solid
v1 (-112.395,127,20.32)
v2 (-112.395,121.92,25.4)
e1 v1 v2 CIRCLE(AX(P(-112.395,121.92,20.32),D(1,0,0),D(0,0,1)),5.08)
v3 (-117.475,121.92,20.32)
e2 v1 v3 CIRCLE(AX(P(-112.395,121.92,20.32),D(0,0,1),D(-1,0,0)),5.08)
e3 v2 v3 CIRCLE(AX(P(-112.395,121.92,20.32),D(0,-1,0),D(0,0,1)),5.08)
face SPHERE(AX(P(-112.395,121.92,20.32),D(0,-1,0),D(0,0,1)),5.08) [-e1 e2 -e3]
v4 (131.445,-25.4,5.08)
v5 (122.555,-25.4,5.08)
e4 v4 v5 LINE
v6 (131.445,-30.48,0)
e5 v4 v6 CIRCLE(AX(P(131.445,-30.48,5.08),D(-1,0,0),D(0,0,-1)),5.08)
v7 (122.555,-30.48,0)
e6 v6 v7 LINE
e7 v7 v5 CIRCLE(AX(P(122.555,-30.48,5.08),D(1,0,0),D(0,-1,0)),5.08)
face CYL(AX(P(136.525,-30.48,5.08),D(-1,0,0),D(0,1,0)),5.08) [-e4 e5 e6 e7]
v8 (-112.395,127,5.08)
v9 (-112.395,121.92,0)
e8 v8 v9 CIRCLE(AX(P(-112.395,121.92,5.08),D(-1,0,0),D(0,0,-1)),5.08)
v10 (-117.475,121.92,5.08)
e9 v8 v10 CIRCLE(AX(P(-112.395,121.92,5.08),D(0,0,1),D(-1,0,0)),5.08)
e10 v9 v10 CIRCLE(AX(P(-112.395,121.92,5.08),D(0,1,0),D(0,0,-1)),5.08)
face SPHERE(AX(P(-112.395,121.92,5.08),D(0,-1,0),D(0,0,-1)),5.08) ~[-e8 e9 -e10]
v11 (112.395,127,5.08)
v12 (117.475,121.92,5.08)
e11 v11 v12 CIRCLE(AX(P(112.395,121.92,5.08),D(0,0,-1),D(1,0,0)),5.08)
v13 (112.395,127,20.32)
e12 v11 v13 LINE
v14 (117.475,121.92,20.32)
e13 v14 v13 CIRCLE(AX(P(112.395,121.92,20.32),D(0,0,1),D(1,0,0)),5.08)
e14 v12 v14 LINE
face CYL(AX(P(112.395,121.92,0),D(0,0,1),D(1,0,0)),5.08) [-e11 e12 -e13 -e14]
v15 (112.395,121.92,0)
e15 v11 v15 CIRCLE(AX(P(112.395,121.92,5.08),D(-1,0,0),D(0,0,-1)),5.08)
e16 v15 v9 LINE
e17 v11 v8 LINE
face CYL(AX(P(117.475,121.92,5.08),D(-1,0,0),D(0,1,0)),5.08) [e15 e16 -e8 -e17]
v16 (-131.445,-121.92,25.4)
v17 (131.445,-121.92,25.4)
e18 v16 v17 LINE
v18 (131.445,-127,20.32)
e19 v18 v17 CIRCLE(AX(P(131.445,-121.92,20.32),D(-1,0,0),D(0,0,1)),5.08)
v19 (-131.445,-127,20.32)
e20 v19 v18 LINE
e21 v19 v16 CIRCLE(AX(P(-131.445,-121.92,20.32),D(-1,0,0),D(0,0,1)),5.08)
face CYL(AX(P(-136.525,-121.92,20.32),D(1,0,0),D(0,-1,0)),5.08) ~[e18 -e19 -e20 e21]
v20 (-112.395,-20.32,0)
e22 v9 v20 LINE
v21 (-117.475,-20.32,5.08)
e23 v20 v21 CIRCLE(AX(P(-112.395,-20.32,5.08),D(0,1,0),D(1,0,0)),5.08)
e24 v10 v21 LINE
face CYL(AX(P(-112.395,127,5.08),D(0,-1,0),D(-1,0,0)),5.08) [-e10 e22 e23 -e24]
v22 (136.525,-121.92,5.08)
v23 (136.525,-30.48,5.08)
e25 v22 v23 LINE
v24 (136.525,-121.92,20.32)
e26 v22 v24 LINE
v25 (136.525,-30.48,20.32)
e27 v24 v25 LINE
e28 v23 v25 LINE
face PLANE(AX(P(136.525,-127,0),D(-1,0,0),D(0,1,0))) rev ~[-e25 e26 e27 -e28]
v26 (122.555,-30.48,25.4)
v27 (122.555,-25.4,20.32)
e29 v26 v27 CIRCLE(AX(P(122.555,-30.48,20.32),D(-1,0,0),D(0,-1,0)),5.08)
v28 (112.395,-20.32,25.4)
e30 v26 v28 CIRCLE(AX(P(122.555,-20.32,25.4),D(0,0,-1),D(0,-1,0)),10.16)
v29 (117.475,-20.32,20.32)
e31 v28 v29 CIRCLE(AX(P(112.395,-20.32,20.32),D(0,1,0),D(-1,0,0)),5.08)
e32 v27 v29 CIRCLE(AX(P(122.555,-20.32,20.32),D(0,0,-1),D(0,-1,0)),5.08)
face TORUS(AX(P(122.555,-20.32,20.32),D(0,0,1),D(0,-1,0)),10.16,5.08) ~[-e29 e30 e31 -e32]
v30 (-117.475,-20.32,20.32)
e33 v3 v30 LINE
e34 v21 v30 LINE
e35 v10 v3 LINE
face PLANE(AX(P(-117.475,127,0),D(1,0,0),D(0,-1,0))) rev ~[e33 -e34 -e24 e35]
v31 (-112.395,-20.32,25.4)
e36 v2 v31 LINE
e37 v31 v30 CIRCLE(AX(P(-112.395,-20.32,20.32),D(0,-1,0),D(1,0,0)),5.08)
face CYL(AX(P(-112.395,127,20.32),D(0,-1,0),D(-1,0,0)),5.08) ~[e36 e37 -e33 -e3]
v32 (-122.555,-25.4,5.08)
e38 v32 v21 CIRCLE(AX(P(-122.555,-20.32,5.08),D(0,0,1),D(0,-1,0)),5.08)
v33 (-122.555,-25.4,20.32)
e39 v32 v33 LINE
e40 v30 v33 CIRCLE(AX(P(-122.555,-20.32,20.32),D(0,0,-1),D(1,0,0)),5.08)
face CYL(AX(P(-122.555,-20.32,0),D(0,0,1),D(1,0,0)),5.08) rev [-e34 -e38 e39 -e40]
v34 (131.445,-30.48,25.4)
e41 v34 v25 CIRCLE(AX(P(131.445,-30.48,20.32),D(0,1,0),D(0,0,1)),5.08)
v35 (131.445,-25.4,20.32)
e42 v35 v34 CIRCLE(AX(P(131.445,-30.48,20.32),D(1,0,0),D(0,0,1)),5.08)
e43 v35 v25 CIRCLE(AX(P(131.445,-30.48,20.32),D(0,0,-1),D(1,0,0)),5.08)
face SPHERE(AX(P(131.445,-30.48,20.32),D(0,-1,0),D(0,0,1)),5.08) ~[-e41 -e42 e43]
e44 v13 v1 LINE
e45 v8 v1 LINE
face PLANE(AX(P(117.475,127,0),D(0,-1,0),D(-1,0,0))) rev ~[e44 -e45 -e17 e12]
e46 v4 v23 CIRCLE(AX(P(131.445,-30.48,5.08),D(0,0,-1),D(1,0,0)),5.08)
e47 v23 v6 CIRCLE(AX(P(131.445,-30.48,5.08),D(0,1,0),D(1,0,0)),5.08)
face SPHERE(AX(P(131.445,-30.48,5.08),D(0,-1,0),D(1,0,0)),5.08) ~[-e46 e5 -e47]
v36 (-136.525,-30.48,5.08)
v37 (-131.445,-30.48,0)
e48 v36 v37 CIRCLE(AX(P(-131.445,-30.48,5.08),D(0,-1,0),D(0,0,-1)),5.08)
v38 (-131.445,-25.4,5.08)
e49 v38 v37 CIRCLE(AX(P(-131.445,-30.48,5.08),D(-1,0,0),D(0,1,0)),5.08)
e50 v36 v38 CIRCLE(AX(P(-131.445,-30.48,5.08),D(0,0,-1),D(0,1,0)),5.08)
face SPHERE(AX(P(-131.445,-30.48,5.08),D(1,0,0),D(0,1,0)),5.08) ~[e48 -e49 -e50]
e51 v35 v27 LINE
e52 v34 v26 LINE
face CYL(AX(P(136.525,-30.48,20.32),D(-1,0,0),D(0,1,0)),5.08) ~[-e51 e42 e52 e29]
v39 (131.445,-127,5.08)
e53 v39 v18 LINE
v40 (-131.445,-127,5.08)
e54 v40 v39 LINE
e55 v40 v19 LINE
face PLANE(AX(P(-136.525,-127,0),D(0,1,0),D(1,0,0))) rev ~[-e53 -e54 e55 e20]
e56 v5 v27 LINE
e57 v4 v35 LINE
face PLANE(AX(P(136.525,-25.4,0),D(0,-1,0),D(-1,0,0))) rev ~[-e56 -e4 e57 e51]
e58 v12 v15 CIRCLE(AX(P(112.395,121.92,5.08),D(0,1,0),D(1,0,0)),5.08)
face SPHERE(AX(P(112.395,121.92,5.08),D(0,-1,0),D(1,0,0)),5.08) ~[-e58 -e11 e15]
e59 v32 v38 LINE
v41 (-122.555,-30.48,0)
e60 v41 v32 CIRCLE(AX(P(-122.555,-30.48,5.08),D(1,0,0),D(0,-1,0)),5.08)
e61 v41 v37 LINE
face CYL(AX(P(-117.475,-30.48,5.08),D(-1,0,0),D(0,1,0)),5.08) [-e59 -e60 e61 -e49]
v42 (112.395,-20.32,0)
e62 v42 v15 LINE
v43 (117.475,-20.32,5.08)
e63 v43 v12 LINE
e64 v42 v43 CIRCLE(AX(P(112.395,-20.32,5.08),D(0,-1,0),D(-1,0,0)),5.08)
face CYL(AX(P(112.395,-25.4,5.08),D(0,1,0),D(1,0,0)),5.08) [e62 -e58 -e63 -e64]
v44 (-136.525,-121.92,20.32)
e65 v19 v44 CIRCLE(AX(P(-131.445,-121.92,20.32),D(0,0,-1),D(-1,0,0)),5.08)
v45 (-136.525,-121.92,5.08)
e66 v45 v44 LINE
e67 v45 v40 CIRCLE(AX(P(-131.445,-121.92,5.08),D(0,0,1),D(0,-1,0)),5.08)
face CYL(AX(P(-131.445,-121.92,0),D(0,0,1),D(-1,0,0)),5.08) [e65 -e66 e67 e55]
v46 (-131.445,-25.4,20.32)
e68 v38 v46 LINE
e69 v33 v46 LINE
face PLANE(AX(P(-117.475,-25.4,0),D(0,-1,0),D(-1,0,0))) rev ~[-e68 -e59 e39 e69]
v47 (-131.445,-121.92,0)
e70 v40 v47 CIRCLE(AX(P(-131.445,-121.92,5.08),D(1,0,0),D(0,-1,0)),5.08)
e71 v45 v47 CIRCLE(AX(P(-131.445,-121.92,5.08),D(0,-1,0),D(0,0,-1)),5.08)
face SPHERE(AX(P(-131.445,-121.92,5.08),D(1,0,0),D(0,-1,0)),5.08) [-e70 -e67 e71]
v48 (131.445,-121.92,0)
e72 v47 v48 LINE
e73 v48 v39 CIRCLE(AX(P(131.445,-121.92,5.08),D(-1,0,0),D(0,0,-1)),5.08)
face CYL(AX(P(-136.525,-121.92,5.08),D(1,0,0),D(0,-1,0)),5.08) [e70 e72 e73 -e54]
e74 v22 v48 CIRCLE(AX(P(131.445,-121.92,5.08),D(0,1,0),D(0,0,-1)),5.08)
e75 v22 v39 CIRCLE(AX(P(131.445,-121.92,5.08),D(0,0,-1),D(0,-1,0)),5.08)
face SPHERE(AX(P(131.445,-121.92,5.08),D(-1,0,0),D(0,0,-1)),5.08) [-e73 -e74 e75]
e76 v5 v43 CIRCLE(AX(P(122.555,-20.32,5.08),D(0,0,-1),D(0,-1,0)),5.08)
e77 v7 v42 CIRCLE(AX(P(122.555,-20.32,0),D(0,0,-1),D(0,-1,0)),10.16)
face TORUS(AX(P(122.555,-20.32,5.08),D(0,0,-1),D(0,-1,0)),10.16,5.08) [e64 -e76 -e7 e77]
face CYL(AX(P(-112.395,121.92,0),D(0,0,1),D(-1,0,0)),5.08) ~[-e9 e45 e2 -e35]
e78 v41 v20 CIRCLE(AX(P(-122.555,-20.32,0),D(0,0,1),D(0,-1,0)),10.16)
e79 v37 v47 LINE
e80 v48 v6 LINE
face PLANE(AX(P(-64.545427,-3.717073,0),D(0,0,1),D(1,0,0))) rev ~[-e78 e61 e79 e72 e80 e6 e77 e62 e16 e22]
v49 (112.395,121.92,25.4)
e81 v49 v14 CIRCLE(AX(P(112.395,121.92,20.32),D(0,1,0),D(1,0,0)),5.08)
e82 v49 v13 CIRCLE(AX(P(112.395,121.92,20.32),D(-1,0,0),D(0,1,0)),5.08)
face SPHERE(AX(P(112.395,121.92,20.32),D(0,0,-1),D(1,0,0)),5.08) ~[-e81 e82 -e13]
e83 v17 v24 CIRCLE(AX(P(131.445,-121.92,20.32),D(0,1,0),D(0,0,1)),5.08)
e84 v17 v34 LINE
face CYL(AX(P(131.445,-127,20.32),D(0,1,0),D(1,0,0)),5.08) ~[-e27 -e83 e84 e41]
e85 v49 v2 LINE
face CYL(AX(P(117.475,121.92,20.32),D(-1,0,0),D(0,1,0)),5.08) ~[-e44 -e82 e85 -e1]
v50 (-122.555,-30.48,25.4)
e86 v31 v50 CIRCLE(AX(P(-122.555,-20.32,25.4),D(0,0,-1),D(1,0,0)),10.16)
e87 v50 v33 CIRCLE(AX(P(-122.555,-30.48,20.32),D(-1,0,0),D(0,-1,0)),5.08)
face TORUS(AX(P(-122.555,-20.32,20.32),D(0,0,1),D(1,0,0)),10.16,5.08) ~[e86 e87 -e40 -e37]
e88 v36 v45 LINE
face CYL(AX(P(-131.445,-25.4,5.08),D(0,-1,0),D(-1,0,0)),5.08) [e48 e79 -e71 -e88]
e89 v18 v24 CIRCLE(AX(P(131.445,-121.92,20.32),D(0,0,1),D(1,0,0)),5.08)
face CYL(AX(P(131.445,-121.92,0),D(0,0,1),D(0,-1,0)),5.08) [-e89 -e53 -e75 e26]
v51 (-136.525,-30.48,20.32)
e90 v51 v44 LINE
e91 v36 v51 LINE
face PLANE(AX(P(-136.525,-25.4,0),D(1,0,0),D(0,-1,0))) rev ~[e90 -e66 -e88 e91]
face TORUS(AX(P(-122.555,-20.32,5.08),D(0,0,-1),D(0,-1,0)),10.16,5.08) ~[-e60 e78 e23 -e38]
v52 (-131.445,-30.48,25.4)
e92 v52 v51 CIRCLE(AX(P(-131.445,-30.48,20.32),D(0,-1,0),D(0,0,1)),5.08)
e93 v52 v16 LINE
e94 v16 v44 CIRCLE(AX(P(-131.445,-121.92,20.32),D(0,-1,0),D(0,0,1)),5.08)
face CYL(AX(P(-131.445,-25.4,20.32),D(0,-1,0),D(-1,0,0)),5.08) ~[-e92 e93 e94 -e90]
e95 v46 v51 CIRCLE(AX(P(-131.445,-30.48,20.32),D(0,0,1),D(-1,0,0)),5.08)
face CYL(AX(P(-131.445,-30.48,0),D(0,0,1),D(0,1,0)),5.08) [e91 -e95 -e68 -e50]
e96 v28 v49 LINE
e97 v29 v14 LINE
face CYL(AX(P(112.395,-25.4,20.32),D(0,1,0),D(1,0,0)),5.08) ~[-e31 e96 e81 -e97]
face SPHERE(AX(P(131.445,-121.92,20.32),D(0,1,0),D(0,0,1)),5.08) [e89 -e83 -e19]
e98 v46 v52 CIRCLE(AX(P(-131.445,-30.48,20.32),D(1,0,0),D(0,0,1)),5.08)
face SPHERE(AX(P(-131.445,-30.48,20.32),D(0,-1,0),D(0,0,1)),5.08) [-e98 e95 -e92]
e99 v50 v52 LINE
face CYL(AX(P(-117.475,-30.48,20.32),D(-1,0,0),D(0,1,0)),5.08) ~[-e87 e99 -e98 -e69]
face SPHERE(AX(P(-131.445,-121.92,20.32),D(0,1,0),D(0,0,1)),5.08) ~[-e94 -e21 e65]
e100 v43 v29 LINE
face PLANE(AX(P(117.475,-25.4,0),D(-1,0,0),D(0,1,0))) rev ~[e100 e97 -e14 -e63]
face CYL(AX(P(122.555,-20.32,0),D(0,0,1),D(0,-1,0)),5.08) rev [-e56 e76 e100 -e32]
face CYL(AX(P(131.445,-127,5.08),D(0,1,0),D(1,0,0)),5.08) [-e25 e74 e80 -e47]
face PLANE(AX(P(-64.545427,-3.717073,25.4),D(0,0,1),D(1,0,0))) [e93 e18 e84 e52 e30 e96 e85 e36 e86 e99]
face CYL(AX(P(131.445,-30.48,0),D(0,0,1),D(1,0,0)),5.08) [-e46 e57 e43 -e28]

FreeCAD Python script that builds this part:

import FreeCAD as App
import Part
import Sketcher
from FreeCAD import Vector
Q = App.Units.Quantity

doc = App.newDocument("Part")
body = doc.addObject("PartDesign::Body", "Body")

# Sketch on XY plane
sketch1 = body.newObject("Sketcher::SketchObject", "Sketch")
sketch1.AttachmentSupport = (doc.getObject("XY_Plane"), [""])
sketch1.MapMode = "FlatFace"
sketch1.addGeometry(Part.LineSegment(Vector(-117, 127, 0), Vector(-117, -25, 0)), False)
sketch1.addGeometry(Part.LineSegment(Vector(-117, -25, 0), Vector(-137, -25, 0)), False)
sketch1.addGeometry(Part.LineSegment(Vector(-137, -25, 0), Vector(-137, -127, 0)), False)
sketch1.addGeometry(Part.LineSegment(Vector(-137, -127, 0), Vector(137, -127, 0)), False)
sketch1.addGeometry(Part.LineSegment(Vector(137, -127, 0), Vector(137, -25, 0)), False)
sketch1.addGeometry(Part.LineSegment(Vector(137, -25, 0), Vector(117, -25, 0)), False)
sketch1.addGeometry(Part.LineSegment(Vector(117, -25, 0), Vector(117, 127, 0)), False)
sketch1.addGeometry(Part.LineSegment(Vector(117, 127, 0), Vector(-117, 127, 0)), False)
sketch1.addConstraint(Sketcher.Constraint("Coincident", 0, 2, 1, 1))
sketch1.addConstraint(Sketcher.Constraint("Coincident", 1, 2, 2, 1))
sketch1.addConstraint(Sketcher.Constraint("Coincident", 2, 2, 3, 1))
sketch1.addConstraint(Sketcher.Constraint("Coincident", 3, 2, 4, 1))
sketch1.addConstraint(Sketcher.Constraint("Coincident", 4, 2, 5, 1))
sketch1.addConstraint(Sketcher.Constraint("Coincident", 5, 2, 6, 1))
sketch1.addConstraint(Sketcher.Constraint("Coincident", 6, 2, 7, 1))
sketch1.addConstraint(Sketcher.Constraint("Coincident", 7, 2, 0, 1))
sketch1.addConstraint(Sketcher.Constraint("Vertical", 0))
sketch1.addConstraint(Sketcher.Constraint("Horizontal", 1))
sketch1.addConstraint(Sketcher.Constraint("Vertical", 2))
sketch1.addConstraint(Sketcher.Constraint("Horizontal", 3))
sketch1.addConstraint(Sketcher.Constraint("Vertical", 4))
sketch1.addConstraint(Sketcher.Constraint("Horizontal", 5))
sketch1.addConstraint(Sketcher.Constraint("Vertical", 6))
sketch1.addConstraint(Sketcher.Constraint("Horizontal", 7))
sketch1.addConstraint(Sketcher.Constraint("Symmetric", 1, 2, 4, 2, -2))
sketch1.addConstraint(Sketcher.Constraint("Equal", 1, 5))
sketch1.addConstraint(Sketcher.Constraint("DistanceY", 0, 2, 0, 1, Q("6 in")))
sketch1.addConstraint(Sketcher.Constraint("DistanceY", 2, 2, 2, 1, Q("4 in")))
sketch1.addConstraint(Sketcher.Constraint("DistanceY", 0, 2, -1, 1, Q("1 in")))
sketch1.addConstraint(Sketcher.Constraint("DistanceX", 0, 2, 3, 2, Q("10 in")))
sketch1.addConstraint(Sketcher.Constraint("DistanceX", 1, 2, 1, 1, Q("0.75 in")))
pad1 = body.newObject("PartDesign::Pad", "Pad")
pad1.Profile = sketch1
pad1.Length = Q("1 in")
doc.recompute()

fillet = body.newObject("PartDesign::Fillet", "Fillet")
fillet.Base = (pad1, ["Edge1"])
fillet.UseAllEdges = True
fillet.Radius = Q("0.2 in")

doc.recompute()
